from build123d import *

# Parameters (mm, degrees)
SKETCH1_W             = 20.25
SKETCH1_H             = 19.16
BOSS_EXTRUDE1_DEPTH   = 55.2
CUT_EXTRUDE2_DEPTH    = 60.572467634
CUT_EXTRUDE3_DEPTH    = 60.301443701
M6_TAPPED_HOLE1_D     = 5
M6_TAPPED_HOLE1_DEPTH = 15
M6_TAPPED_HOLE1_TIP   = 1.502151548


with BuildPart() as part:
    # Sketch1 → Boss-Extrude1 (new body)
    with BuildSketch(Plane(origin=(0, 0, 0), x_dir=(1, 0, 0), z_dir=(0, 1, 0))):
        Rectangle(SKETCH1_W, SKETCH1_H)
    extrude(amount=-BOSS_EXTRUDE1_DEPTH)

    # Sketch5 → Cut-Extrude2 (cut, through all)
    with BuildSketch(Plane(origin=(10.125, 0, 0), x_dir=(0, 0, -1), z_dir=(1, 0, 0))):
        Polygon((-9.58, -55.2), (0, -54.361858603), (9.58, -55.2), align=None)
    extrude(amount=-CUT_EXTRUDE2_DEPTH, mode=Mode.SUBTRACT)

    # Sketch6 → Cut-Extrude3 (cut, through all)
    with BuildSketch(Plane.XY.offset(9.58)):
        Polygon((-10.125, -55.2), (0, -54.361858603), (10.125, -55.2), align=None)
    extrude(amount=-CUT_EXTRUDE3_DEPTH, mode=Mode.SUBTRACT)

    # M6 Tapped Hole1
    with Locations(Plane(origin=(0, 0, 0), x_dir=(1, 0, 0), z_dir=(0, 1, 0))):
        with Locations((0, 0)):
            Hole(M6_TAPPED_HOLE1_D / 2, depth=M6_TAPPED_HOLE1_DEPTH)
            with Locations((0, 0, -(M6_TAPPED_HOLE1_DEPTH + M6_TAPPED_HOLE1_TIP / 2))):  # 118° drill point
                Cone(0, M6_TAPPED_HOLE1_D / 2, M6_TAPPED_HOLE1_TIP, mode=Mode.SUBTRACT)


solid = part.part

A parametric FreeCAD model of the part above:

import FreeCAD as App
import Part
import Sketcher
Q = App.Units.Quantity

doc = App.newDocument("Part")
body = doc.addObject("PartDesign::Body", "Body")

# Sketch on XZ plane
sketch1 = body.newObject("Sketcher::SketchObject", "Sketch")
sketch1.AttachmentSupport = (doc.getObject("XZ_Plane"), [""])
sketch1.MapMode = "FlatFace"
sketch1.addGeometry([
    Part.LineSegment(App.Vector(-10, -10, 0), App.Vector(-10, 10, 0)),
    Part.LineSegment(App.Vector(-10, 10, 0), App.Vector(10, 10, 0)),
    Part.LineSegment(App.Vector(10, 10, 0), App.Vector(10, -10, 0)),
    Part.LineSegment(App.Vector(10, -10, 0), App.Vector(-10, -10, 0)),
], False)
sketch1.addConstraint([
    Sketcher.Constraint("Coincident", 0, 2, 1, 1),
    Sketcher.Constraint("Coincident", 1, 2, 2, 1),
    Sketcher.Constraint("Coincident", 2, 2, 3, 1),
    Sketcher.Constraint("Coincident", 3, 2, 0, 1),
    Sketcher.Constraint("Vertical", 0),
    Sketcher.Constraint("Horizontal", 1),
    Sketcher.Constraint("Vertical", 2),
    Sketcher.Constraint("Horizontal", 3),
    Sketcher.Constraint("Symmetric", 0, 2, 2, 2, -1, 1),
    Sketcher.Constraint("DistanceX", 1, 1, 1, 2, Q("20.25 mm")),
    Sketcher.Constraint("DistanceY", 0, 1, 0, 2, Q("19.16 mm")),
])
pad1 = body.newObject("PartDesign::Pad", "Pad")
pad1.Profile = sketch1
pad1.Length = 55.2

# Sketch on YZ plane
sketch2 = body.newObject("Sketcher::SketchObject", "Sketch001")
sketch2.AttachmentSupport = (doc.getObject("YZ_Plane"), [""])
sketch2.MapMode = "FlatFace"
sketch2.AttachmentOffset = App.Placement(App.Vector(0, 0, 10.125), App.Rotation())
sketch2.addGeometry([
    Part.LineSegment(App.Vector(-54, 0, 0), App.Vector(-55, 10, 0)),
    Part.LineSegment(App.Vector(-55, 10, 0), App.Vector(-55, -10, 0)),
    Part.LineSegment(App.Vector(-55, -10, 0), App.Vector(-54, 0, 0)),
], False)
sketch2.addConstraint([
    Sketcher.Constraint("Coincident", 0, 2, 1, 1),
    Sketcher.Constraint("Coincident", 1, 2, 2, 1),
    Sketcher.Constraint("Coincident", 2, 2, 0, 1),
    Sketcher.Constraint("Vertical", 1),
    Sketcher.Constraint("PointOnObject", 2, 2, -1),
    Sketcher.Constraint("Equal", 0, 2),
    Sketcher.Constraint("Angle", 0, Q("95 deg")),
    Sketcher.Constraint("DistanceY", 1, 2, 1, 1, Q("19.16 mm")),
    Sketcher.Constraint("DistanceX", 0, 2, -1, 1, Q("55.2 mm")),
])
pocket1 = body.newObject("PartDesign::Pocket", "Pocket")
pocket1.Profile = sketch2
pocket1.Type = "ThroughAll"

# Sketch on XY plane
sketch3 = body.newObject("Sketcher::SketchObject", "Sketch002")
sketch3.AttachmentSupport = (doc.getObject("XY_Plane"), [""])
sketch3.MapMode = "FlatFace"
sketch3.AttachmentOffset = App.Placement(App.Vector(0, 0, 9.58), App.Rotation())
sketch3.addGeometry([
    Part.LineSegment(App.Vector(0, -54, 0), App.Vector(-10, -55, 0)),
    Part.LineSegment(App.Vector(-10, -55, 0), App.Vector(10, -55, 0)),
    Part.LineSegment(App.Vector(10, -55, 0), App.Vector(0, -54, 0)),
], False)
sketch3.addConstraint([
    Sketcher.Constraint("Coincident", 0, 2, 1, 1),
    Sketcher.Constraint("Coincident", 1, 2, 2, 1),
    Sketcher.Constraint("Coincident", 2, 2, 0, 1),
    Sketcher.Constraint("Horizontal", 1),
    Sketcher.Constraint("PointOnObject", 2, 2, -2),
    Sketcher.Constraint("Equal", 0, 2),
    Sketcher.Constraint("DistanceX", 1, 1, 1, 2, Q("20.25 mm")),
    Sketcher.Constraint("DistanceY", 0, 2, -1, 1, Q("55.2 mm")),
    Sketcher.Constraint("Distance", 0, Q("10.159631 mm")),
])
pocket2 = body.newObject("PartDesign::Pocket", "Pocket001")
pocket2.Profile = sketch3
pocket2.Type = "ThroughAll"

# Sketch on XZ plane
sketch4 = body.newObject("Sketcher::SketchObject", "Sketch003")
sketch4.AttachmentSupport = (doc.getObject("XZ_Plane"), [""])
sketch4.MapMode = "FlatFace"
sketch4.addGeometry(Part.Circle(App.Vector(0, 0, 0), App.Vector(0, 0, 1), 2.5), False)
sketch4.addConstraint([
    Sketcher.Constraint("Coincident", 0, 3, -1, 1),
    Sketcher.Constraint("Diameter", 0, Q("5 mm")),
])
doc.recompute()
hole = body.newObject("PartDesign::Hole", "Hole")
hole.Profile = sketch4
hole.ThreadType = "None"
hole.Diameter = 5
hole.DepthType = "Dimension"
hole.Depth = 15
hole.DrillPoint = "Angled"
hole.DrillPointAngle = 118
hole.Reversed = True

doc.recompute()
